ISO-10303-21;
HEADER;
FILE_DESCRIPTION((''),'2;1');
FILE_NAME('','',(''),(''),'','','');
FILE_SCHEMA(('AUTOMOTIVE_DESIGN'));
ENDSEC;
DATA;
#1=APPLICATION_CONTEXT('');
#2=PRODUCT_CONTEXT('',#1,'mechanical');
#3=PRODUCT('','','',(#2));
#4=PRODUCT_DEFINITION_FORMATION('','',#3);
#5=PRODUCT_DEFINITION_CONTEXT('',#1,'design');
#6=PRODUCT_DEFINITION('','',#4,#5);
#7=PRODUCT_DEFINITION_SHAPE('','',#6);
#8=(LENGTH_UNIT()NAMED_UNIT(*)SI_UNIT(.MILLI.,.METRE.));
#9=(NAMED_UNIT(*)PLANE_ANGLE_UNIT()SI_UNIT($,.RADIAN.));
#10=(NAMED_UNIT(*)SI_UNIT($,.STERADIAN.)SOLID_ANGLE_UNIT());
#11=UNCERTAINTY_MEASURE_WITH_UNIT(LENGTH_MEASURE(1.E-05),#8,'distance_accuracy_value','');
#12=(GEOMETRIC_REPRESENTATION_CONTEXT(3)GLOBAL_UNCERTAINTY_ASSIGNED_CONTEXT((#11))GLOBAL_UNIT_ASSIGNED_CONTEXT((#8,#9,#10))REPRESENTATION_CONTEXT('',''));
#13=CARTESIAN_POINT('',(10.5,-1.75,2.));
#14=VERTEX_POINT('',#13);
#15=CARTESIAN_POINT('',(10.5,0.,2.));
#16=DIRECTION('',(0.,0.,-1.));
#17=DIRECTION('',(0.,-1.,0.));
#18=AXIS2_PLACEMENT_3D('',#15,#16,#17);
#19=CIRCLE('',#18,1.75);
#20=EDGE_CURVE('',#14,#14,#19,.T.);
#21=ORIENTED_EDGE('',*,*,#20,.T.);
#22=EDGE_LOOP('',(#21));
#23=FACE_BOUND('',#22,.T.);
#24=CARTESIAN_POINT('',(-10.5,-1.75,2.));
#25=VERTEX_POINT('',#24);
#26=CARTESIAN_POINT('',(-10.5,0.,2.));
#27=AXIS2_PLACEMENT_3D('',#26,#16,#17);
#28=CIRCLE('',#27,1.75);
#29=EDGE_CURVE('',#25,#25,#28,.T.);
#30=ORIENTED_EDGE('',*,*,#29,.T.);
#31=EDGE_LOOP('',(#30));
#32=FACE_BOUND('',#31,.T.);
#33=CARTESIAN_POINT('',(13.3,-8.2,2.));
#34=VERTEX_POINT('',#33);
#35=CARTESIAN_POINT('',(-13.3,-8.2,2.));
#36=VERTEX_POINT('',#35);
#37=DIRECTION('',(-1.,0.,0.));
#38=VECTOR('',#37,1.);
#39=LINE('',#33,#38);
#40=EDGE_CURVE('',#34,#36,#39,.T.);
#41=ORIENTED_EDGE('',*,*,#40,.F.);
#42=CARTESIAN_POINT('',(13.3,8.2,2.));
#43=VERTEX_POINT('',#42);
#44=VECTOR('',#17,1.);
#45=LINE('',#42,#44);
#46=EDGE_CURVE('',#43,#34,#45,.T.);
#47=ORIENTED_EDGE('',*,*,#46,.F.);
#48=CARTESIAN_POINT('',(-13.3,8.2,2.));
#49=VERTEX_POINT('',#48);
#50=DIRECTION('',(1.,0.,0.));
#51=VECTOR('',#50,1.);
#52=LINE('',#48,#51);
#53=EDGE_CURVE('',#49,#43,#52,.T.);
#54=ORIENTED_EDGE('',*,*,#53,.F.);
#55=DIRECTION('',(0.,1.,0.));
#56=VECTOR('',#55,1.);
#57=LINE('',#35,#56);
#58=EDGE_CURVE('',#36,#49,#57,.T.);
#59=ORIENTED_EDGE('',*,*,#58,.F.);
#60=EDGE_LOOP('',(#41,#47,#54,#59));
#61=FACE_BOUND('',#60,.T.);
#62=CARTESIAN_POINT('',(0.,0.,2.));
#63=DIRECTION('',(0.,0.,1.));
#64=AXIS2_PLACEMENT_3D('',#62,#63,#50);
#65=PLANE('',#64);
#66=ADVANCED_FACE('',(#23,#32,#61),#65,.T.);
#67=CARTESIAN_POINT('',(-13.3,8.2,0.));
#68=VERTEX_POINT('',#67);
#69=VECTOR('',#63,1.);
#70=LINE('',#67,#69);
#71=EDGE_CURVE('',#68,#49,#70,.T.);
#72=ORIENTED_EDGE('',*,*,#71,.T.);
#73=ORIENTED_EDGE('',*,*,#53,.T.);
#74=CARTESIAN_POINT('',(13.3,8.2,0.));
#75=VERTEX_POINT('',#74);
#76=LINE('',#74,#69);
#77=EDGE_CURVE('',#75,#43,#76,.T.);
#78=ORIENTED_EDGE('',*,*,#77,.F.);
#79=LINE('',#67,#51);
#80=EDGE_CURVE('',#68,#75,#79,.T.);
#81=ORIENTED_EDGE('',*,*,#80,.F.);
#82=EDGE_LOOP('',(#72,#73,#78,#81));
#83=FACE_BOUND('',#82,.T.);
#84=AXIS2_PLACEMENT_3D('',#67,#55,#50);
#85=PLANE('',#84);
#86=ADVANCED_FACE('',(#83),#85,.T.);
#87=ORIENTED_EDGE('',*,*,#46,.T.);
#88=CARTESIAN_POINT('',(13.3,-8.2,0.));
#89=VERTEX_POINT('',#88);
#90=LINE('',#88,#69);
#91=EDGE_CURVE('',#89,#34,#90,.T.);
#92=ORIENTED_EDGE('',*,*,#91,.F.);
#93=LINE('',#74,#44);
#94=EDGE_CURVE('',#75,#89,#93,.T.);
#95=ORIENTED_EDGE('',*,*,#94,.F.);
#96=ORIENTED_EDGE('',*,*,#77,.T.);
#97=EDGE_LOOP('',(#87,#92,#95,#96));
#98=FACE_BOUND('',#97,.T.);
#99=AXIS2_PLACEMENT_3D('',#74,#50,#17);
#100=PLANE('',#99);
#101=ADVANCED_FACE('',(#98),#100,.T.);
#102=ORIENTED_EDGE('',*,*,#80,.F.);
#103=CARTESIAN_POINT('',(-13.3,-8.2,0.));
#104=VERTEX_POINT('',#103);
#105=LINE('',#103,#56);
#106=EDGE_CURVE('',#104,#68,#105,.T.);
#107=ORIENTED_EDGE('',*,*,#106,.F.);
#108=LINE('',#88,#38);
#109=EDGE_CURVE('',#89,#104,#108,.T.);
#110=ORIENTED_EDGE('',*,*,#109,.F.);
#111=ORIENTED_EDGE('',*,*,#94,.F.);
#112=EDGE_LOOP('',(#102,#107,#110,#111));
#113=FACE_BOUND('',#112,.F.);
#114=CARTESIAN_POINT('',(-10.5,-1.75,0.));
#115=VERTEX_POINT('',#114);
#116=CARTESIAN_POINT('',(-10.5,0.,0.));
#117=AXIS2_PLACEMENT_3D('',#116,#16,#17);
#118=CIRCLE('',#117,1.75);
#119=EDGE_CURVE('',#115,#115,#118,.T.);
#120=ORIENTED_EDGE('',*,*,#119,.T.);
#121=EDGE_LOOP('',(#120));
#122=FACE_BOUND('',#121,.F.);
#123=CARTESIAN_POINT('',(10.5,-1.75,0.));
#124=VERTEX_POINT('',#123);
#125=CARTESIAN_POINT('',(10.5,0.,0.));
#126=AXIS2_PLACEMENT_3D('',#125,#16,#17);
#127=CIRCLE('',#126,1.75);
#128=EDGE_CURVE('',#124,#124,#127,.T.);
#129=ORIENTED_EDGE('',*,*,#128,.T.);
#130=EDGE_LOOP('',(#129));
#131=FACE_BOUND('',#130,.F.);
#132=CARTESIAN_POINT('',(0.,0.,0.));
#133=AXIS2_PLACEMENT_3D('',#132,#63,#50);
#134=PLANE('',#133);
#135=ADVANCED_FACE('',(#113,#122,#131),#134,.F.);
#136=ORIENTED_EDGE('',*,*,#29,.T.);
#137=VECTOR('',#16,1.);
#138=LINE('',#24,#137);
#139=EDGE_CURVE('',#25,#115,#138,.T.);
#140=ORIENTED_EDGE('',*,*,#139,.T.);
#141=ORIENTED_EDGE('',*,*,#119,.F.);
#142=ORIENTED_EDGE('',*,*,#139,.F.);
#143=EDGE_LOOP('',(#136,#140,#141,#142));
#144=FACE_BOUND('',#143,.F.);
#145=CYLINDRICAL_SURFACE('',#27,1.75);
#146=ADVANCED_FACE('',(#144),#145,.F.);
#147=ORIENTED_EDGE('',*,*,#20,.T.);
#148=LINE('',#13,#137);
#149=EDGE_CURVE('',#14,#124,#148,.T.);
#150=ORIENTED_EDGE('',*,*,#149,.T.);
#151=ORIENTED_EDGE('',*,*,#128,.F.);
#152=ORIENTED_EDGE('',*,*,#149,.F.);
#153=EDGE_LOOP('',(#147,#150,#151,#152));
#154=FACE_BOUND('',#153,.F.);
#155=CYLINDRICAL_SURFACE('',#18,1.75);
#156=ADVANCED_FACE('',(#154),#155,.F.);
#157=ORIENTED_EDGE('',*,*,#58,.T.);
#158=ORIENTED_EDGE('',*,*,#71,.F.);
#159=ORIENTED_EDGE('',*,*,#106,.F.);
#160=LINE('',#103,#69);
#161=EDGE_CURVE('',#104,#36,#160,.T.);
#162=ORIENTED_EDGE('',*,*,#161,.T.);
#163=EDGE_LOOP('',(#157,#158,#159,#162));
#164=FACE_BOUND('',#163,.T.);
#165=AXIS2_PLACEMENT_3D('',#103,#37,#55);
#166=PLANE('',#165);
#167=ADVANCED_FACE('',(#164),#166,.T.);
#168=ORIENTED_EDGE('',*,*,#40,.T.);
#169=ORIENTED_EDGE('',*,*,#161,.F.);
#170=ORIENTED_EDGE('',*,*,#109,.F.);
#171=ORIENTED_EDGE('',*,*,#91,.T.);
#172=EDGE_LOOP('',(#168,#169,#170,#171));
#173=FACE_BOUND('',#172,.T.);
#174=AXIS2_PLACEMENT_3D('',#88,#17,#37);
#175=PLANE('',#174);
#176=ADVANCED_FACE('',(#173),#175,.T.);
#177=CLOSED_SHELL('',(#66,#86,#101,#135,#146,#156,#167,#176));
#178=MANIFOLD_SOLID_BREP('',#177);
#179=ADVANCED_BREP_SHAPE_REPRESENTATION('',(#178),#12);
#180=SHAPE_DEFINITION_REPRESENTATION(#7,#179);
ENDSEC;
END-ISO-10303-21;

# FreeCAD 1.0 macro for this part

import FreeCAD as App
import Part
import Sketcher
Q = App.Units.Quantity

doc = App.newDocument("Part")
body = doc.addObject("PartDesign::Body", "Body")

sketch1 = body.newObject("Sketcher::SketchObject", "Sketch")
sketch1.AttachmentSupport = (doc.getObject("XY_Plane"), [""])
sketch1.MapMode = "FlatFace"
sketch1.addGeometry(Part.LineSegment(App.Vector(13, 8, 0), App.Vector(-13, 8, 0)), False)
sketch1.addGeometry(Part.LineSegment(App.Vector(-13, 8, 0), App.Vector(-13, -8, 0)), False)
sketch1.addGeometry(Part.LineSegment(App.Vector(-13, -8, 0), App.Vector(13, -8, 0)), False)
sketch1.addGeometry(Part.LineSegment(App.Vector(13, -8, 0), App.Vector(13, 8, 0)), False)
sketch1.addConstraint(Sketcher.Constraint("Coincident", 0, 2, 1, 1))
sketch1.addConstraint(Sketcher.Constraint("Coincident", 1, 2, 2, 1))
sketch1.addConstraint(Sketcher.Constraint("Coincident", 2, 2, 3, 1))
sketch1.addConstraint(Sketcher.Constraint("Coincident", 3, 2, 0, 1))
sketch1.addConstraint(Sketcher.Constraint("Horizontal", 0))
sketch1.addConstraint(Sketcher.Constraint("Vertical", 1))
sketch1.addConstraint(Sketcher.Constraint("Horizontal", 2))
sketch1.addConstraint(Sketcher.Constraint("Vertical", 3))
sketch1.addConstraint(Sketcher.Constraint("Symmetric", 0, 2, 2, 2, -1, 1))
sketch1.addConstraint(Sketcher.Constraint("DistanceX", 0, 2, 0, 1, Q("26.6 mm")))
sketch1.addConstraint(Sketcher.Constraint("DistanceY", 1, 2, 1, 1, Q("16.4 mm")))
pad1 = body.newObject("PartDesign::Pad", "Pad")
pad1.Profile = sketch1
pad1.Length = 2

sketch2 = body.newObject("Sketcher::SketchObject", "Sketch001")
sketch2.AttachmentSupport = (doc.getObject("XY_Plane"), [""])
sketch2.MapMode = "FlatFace"
sketch2.AttachmentOffset = App.Placement(App.Vector(0, 0, 2), App.Rotation())
sketch2.addGeometry(Part.Circle(App.Vector(10.5, 0, 0), App.Vector(0, 0, 1), 1.8), False)
sketch2.addConstraint(Sketcher.Constraint("PointOnObject", 0, 3, -1))
sketch2.addConstraint(Sketcher.Constraint("Diameter", 0, Q("3.5 mm")))
sketch2.addConstraint(Sketcher.Constraint("DistanceX", -1, 1, 0, 3, Q("10.5 mm")))
doc.recompute()
hole = body.newObject("PartDesign::Hole", "Hole")
hole.Profile = sketch2
hole.ThreadType = "None"
hole.Diameter = 3.5
hole.DepthType = "ThroughAll"
doc.recompute()

linearpattern = body.newObject("PartDesign::LinearPattern", "LinearPattern")
linearpattern.Originals = [hole]
linearpattern.Direction = (doc.getObject("X_Axis"), [""])
linearpattern.Mode = "offset"
linearpattern.Offset = 21
linearpattern.Occurrences = 2
linearpattern.Reversed = True
body.Tip = linearpattern

doc.recompute()
